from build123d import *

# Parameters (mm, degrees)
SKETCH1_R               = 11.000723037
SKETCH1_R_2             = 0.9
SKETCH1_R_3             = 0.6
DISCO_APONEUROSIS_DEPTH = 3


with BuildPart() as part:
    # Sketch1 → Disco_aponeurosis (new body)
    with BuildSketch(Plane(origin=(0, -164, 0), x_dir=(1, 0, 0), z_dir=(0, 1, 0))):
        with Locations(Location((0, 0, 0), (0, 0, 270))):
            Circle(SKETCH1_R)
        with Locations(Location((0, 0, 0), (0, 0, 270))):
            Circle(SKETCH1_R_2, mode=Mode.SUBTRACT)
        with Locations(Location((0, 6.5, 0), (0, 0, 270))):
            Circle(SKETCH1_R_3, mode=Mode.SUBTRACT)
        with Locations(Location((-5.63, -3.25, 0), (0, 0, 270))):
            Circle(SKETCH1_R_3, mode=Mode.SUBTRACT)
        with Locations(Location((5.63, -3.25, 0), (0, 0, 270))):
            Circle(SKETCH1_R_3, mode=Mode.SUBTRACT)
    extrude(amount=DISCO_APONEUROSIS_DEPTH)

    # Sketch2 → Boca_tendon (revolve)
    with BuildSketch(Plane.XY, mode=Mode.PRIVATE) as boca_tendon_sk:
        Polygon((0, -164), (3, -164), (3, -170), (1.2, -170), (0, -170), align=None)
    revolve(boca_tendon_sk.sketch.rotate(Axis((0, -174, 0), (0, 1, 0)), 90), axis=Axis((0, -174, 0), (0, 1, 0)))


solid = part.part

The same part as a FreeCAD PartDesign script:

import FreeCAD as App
import Part
import Sketcher


def add_polygon(sketch, points):
    """Adds a closed chain of lines whose ends are joined by coincident constraints."""
    first, n = sketch.GeometryCount, len(points)
    for a, b in zip(points, points[1:] + points[:1]):
        sketch.addGeometry(Part.LineSegment(App.Vector(*a, 0), App.Vector(*b, 0)), False)
    for i in range(n):
        sketch.addConstraint(Sketcher.Constraint("Coincident", first + i, 2, first + (i + 1) % n, 1))

doc = App.newDocument("Part")
body = doc.addObject("PartDesign::Body", "Body")

# Sketch on XZ plane
sketch1 = body.newObject("Sketcher::SketchObject", "Sketch")
sketch1.AttachmentSupport = (doc.getObject("XZ_Plane"), [""])
sketch1.MapMode = "FlatFace"
sketch1.AttachmentOffset = App.Placement(App.Vector(0, 0, 164), App.Rotation())
sketch1.addGeometry([
    Part.Circle(App.Vector(0, 0, 0), App.Vector(0, 0, 1), 11),  # 0
    Part.Circle(App.Vector(0, -6.5, 0), App.Vector(0, 0, 1), 0.6),  # 1
    Part.Circle(App.Vector(-5.6, 3.2, 0), App.Vector(0, 0, 1), 0.6),  # 2
    Part.Circle(App.Vector(0, 0, 0), App.Vector(0, 0, 1), 0.9),  # 3
    Part.Circle(App.Vector(5.6, 3.2, 0), App.Vector(0, 0, 1), 0.6),  # 4
], False)
sketch1.addConstraint([
    Sketcher.Constraint("Coincident", 0, 3, -1, 1),
    Sketcher.Constraint("Coincident", 3, 3, -1, 1),
    Sketcher.Constraint("Equal", 1, 2),
    Sketcher.Constraint("Equal", 2, 4),
    Sketcher.Constraint("Symmetric", 2, 3, 4, 3, -2),
    Sketcher.Constraint("PointOnObject", 1, 3, -2),
    Sketcher.Constraint("Diameter", 1, 1.2),
    Sketcher.Constraint("Diameter", 3, 1.8),
    Sketcher.Constraint("DistanceY", 1, 3, -1, 1, 6.5),
    Sketcher.Constraint("DistanceX", 2, 3, -1, 1, 5.63),
    Sketcher.Constraint("DistanceY", -1, 1, 2, 3, 3.25),
    Sketcher.Constraint("Diameter", 0, 22.001446),
])
pad1 = body.newObject("PartDesign::Pad", "Pad")
pad1.Profile = sketch1
pad1.Length = 3
pad1.Reversed = True

# Sketch on XY plane
sketch2 = body.newObject("Sketcher::SketchObject", "Sketch001")
sketch2.AttachmentSupport = (doc.getObject("XY_Plane"), [""])
sketch2.MapMode = "FlatFace"
add_polygon(sketch2, [(3, -164), (0, -164), (0, -170), (3, -170)])  # lines 0-3
sketch2.addConstraint([
    Sketcher.Constraint("Horizontal", 0),
    Sketcher.Constraint("Vertical", 1),
    Sketcher.Constraint("Horizontal", 2),
    Sketcher.Constraint("Vertical", 3),
    Sketcher.Constraint("PointOnObject", 0, 2, -2),
    Sketcher.Constraint("DistanceX", 0, 2, 0, 1, 3.0),
    Sketcher.Constraint("DistanceY", 1, 2, 1, 1, 6.0),
    Sketcher.Constraint("DistanceY", 0, 2, -1, 1, 164.0),
])
revolution = body.newObject("PartDesign::Revolution", "Revolution")
revolution.Profile = sketch2
revolution.ReferenceAxis = (sketch2, ["V_Axis"])
revolution.Angle = 360

doc.recompute()
